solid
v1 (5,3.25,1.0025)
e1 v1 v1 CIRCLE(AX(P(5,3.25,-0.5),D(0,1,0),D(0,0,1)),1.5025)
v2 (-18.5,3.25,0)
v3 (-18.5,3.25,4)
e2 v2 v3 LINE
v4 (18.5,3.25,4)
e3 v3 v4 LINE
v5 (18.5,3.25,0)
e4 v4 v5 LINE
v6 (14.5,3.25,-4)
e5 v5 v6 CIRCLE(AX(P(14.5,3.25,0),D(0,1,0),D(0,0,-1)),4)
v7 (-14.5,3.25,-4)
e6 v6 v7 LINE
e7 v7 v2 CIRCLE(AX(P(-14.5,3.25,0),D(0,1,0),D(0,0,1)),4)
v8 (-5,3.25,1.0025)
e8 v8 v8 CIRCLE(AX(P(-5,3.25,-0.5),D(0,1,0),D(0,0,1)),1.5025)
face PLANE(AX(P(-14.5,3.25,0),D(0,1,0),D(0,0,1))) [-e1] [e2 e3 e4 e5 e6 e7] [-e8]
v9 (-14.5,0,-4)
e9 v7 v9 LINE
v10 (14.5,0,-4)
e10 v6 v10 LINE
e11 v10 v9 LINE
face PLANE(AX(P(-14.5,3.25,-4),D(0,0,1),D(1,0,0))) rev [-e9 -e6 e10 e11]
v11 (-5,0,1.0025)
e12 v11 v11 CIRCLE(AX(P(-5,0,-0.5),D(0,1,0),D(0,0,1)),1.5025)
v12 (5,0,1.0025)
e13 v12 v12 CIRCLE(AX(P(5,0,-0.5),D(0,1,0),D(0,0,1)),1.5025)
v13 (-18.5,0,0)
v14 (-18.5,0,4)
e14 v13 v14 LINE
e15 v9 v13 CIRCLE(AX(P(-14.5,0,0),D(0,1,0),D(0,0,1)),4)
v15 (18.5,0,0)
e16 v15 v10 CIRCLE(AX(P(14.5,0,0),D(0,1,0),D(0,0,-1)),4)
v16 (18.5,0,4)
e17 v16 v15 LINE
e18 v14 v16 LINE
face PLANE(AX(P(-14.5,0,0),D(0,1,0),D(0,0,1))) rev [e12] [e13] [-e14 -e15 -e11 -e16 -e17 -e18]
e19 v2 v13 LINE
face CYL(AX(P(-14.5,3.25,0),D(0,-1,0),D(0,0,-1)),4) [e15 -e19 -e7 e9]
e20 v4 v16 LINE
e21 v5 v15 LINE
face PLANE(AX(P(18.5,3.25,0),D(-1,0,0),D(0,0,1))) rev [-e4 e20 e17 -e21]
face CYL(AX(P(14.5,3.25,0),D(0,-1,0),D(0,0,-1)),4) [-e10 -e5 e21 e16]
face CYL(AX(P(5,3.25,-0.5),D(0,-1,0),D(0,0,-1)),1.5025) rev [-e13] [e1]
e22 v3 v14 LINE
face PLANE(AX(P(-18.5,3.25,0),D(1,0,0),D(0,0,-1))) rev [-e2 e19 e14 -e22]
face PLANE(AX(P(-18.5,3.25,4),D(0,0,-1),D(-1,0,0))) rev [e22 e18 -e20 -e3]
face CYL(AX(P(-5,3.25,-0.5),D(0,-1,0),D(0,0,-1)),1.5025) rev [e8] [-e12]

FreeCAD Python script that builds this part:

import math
import FreeCAD as App
import Part
import Sketcher
from FreeCAD import Vector

doc = App.newDocument("Part")
body = doc.addObject("PartDesign::Body", "Body")

# Sketch on XZ plane
sketch1 = doc.addObject("Sketcher::SketchObject", "Sketch")
body.addObject(sketch1)
sketch1.AttachmentSupport = (doc.XZ_Plane, [""])
sketch1.MapMode = "FlatFace"
sketch1.addGeometry(Part.LineSegment(Vector(14.5, -4, 0), Vector(-14.5, -4, 0)), False)
sketch1.addGeometry(Part.ArcOfCircle(Part.Circle(Vector(-14.5, 0, 0), Vector(0, 0, 1), 4), math.radians(180), math.radians(270)), False)
sketch1.addGeometry(Part.LineSegment(Vector(-18.5, 0, 0), Vector(-18.5, 4, 0)), False)
sketch1.addGeometry(Part.LineSegment(Vector(-18.5, 4, 0), Vector(18.5, 4, 0)), False)
sketch1.addGeometry(Part.LineSegment(Vector(18.5, 4, 0), Vector(18.5, 0, 0)), False)
sketch1.addGeometry(Part.ArcOfCircle(Part.Circle(Vector(14.5, 0, 0), Vector(0, 0, 1), 4), math.radians(-90), math.radians(0)), False)
sketch1.addGeometry(Part.Circle(Vector(5, -0.5, 0), Vector(0, 0, 1), 1.5025), False)
sketch1.addGeometry(Part.Circle(Vector(-5, -0.5, 0), Vector(0, 0, 1), 1.5025), False)
sketch1.addConstraint(Sketcher.Constraint("Tangent", 0, 2, 1, 2))
sketch1.addConstraint(Sketcher.Constraint("Tangent", 1, 1, 2, 1))
sketch1.addConstraint(Sketcher.Constraint("Coincident", 2, 2, 3, 1))
sketch1.addConstraint(Sketcher.Constraint("Coincident", 3, 2, 4, 1))
sketch1.addConstraint(Sketcher.Constraint("Tangent", 4, 2, 5, 2))
sketch1.addConstraint(Sketcher.Constraint("Tangent", 5, 1, 0, 1))
sketch1.addConstraint(Sketcher.Constraint("Horizontal", 0))
sketch1.addConstraint(Sketcher.Constraint("Vertical", 2))
sketch1.addConstraint(Sketcher.Constraint("Horizontal", 3))
sketch1.addConstraint(Sketcher.Constraint("Vertical", 4))
sketch1.addConstraint(Sketcher.Constraint("Equal", 1, 5))
sketch1.addConstraint(Sketcher.Constraint("Equal", 6, 7))
sketch1.addConstraint(Sketcher.Constraint("Symmetric", 1, 3, 5, 3, -1, 1))
sketch1.addConstraint(Sketcher.Constraint("Symmetric", 6, 3, 7, 3, -2))
sketch1.addConstraint(Sketcher.Constraint("Radius", 1, 4.0))
sketch1.addConstraint(Sketcher.Constraint("DistanceX", 0, 2, 0, 1, 29.0))
sketch1.addConstraint(Sketcher.Constraint("DistanceY", 2, 1, 2, 2, 4.0))
sketch1.addConstraint(Sketcher.Constraint("Diameter", 6, 3.005))
sketch1.addConstraint(Sketcher.Constraint("DistanceX", -1, 1, 6, 3, 5.0))
sketch1.addConstraint(Sketcher.Constraint("DistanceY", 6, 3, -1, 1, 0.5))
pad1 = doc.addObject("PartDesign::Pad", "Pad")
body.addObject(pad1)
pad1.Profile = sketch1
pad1.Length = 3.25
pad1.Reversed = True

doc.recompute()
